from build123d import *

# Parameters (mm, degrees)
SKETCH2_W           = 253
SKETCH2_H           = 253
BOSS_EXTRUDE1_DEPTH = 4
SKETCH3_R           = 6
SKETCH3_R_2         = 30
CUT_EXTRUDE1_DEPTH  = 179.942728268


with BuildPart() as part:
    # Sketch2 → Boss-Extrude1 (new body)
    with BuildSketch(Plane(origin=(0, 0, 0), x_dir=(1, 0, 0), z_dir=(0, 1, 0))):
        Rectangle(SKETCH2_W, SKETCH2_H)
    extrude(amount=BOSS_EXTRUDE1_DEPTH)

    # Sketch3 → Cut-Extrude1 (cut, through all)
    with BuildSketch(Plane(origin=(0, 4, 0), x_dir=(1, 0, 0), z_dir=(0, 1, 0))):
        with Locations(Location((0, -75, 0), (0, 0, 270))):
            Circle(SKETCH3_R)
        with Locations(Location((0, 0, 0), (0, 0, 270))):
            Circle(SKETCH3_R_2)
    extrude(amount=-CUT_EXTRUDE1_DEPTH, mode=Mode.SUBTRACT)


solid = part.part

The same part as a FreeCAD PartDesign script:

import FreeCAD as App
import Part
import Sketcher
from FreeCAD import Vector
Q = App.Units.Quantity


def add_polygon(sketch, points):
    """Adds a closed chain of lines whose ends are joined by coincident constraints."""
    first, n = sketch.GeometryCount, len(points)
    for a, b in zip(points, points[1:] + points[:1]):
        sketch.addGeometry(Part.LineSegment(App.Vector(*a, 0), App.Vector(*b, 0)), False)
    for i in range(n):
        sketch.addConstraint(Sketcher.Constraint("Coincident", first + i, 2, first + (i + 1) % n, 1))

doc = App.newDocument("Part")
params = doc.addObject("Spreadsheet::Sheet", "Params")
for row, (alias, value) in enumerate([
    ("sketch1_width", "253 mm"),
    ("pad1_length", "4 mm"),
    ("sketch2_diameter", "12 mm"),
    ("sketch2_diameter2", "60 mm"),
], start=1):
    params.set(f"A{row}", alias)
    params.set(f"B{row}", "=" + value)
    params.setAlias(f"B{row}", alias)

body = doc.addObject("PartDesign::Body", "Body")

sketch1 = body.newObject("Sketcher::SketchObject", "Sketch")
sketch1.AttachmentSupport = (doc.getObject("XZ_Plane"), [""])
sketch1.MapMode = "FlatFace"
add_polygon(sketch1, [(-126.5, -126.5), (-126.5, 126.5), (126.5, 126.5), (126.5, -126.5)])
sketch1.addConstraint([
    Sketcher.Constraint("Vertical", 0),
    Sketcher.Constraint("Horizontal", 1),
    Sketcher.Constraint("Vertical", 2),
    Sketcher.Constraint("Horizontal", 3),
    Sketcher.Constraint("Symmetric", 0, 2, 2, 2, -1, 1),
    Sketcher.Constraint("Equal", 3, 0),
    Sketcher.Constraint("DistanceX", 1, 1, 1, 2, Q("253 mm")),
])
sketch1.setExpression("Constraints[10]", "Params.sketch1_width")
pad1 = body.newObject("PartDesign::Pad", "Pad")
pad1.Profile = sketch1
pad1.setExpression("Length", "Params.pad1_length")
pad1.Reversed = True

sketch2 = body.newObject("Sketcher::SketchObject", "Sketch001")
sketch2.AttachmentSupport = (doc.getObject("XZ_Plane"), [""])
sketch2.MapMode = "FlatFace"
sketch2.AttachmentOffset = App.Placement(Vector(0, 0, -4), App.Rotation())
sketch2.addGeometry([
    Part.Circle(Vector(0, 75, 0), Vector(0, 0, 1), 6),
    Part.Circle(Vector(0, 0, 0), Vector(0, 0, 1), 30),
], False)
sketch2.addConstraint([
    Sketcher.Constraint("Coincident", 1, 3, -1, 1),
    Sketcher.Constraint("PointOnObject", 0, 3, -2),
    Sketcher.Constraint("Diameter", 0, Q("12 mm")),
    Sketcher.Constraint("Diameter", 1, Q("60 mm")),
    Sketcher.Constraint("DistanceY", -1, 1, 0, 3, Q("75 mm")),
])
sketch2.setExpression("Constraints[2]", "Params.sketch2_diameter")
sketch2.setExpression("Constraints[3]", "Params.sketch2_diameter2")
pocket1 = body.newObject("PartDesign::Pocket", "Pocket")
pocket1.Profile = sketch2
pocket1.Type = "ThroughAll"
pocket1.Reversed = True

doc.recompute()
